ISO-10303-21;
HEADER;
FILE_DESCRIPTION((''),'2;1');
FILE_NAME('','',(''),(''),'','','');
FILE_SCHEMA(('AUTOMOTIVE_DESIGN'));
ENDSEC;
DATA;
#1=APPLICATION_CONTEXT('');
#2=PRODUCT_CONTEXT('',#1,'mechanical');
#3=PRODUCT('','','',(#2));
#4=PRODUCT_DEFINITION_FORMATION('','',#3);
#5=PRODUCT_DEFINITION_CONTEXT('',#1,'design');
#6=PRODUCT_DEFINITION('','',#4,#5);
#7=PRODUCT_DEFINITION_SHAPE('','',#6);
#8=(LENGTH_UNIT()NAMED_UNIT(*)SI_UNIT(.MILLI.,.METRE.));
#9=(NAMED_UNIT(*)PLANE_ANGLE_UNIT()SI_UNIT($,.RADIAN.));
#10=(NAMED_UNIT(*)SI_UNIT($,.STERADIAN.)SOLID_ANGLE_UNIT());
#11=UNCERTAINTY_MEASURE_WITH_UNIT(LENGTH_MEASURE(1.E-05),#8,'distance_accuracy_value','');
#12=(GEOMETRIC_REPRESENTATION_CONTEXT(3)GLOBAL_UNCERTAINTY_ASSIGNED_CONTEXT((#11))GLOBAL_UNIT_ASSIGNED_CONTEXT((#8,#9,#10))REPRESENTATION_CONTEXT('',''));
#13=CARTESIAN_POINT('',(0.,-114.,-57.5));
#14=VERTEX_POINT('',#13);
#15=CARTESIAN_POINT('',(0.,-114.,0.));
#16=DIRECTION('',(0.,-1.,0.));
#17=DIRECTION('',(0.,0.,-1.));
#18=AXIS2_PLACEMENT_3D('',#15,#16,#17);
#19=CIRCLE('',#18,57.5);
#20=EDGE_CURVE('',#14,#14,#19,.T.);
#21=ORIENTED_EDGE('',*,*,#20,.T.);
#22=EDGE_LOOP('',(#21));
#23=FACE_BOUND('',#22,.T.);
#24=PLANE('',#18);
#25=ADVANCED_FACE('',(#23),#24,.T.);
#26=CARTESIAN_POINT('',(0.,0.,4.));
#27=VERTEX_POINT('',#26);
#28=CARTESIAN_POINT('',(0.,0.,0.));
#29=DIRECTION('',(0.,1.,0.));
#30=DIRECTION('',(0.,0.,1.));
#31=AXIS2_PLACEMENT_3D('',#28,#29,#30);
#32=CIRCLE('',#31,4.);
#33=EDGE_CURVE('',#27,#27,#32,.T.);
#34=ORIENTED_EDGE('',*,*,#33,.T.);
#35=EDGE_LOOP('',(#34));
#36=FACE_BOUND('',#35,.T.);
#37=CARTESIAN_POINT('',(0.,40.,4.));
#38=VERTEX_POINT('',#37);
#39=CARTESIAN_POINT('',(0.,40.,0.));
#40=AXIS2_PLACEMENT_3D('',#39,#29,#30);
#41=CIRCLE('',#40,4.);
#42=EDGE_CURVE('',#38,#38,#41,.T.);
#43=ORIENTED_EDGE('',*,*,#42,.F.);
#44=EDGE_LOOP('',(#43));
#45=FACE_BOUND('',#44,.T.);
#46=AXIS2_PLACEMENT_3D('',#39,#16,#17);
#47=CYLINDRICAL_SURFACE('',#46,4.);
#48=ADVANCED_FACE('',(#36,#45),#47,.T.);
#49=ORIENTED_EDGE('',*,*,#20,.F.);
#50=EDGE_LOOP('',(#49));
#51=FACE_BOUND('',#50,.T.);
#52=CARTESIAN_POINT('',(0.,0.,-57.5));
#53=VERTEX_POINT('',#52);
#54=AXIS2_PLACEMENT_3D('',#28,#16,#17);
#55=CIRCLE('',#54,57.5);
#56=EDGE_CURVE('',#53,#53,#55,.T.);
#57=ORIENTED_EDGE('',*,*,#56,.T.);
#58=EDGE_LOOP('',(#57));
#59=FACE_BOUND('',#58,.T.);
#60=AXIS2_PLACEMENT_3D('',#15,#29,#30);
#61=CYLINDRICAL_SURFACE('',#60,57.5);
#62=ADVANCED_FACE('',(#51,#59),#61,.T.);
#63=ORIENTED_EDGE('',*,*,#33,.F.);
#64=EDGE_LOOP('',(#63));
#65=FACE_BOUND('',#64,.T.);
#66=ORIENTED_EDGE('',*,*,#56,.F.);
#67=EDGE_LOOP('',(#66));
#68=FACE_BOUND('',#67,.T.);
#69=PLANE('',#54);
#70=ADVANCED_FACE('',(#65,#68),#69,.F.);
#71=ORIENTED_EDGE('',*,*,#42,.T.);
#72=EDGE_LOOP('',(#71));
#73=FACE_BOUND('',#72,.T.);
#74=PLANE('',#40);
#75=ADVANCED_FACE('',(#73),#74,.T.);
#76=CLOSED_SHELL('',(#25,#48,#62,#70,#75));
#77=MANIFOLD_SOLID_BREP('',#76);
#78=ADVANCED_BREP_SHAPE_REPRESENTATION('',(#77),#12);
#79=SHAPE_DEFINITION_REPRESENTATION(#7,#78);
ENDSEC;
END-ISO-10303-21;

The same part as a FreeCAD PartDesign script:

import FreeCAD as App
import Part
import Sketcher
from FreeCAD import Vector

doc = App.newDocument("Part")
body = doc.addObject("PartDesign::Body", "Body")

sketch1 = doc.addObject("Sketcher::SketchObject", "Sketch")
body.addObject(sketch1)
sketch1.AttachmentSupport = (doc.XZ_Plane, [""])
sketch1.MapMode = "FlatFace"
sketch1.addGeometry(Part.Circle(Vector(0, 0, 0), Vector(0, 0, 1), 4), False)
sketch1.addConstraint([
    Sketcher.Constraint("Coincident", 0, 3, -1, 1),
    Sketcher.Constraint("Diameter", 0, 8.0),
])
pad1 = doc.addObject("PartDesign::Pad", "Pad")
body.addObject(pad1)
pad1.Profile = sketch1
pad1.Length = 40
pad1.Reversed = True

sketch2 = doc.addObject("Sketcher::SketchObject", "Sketch001")
body.addObject(sketch2)
sketch2.AttachmentSupport = (doc.XZ_Plane, [""])
sketch2.MapMode = "FlatFace"
sketch2.addGeometry(Part.Circle(Vector(0, 0, 0), Vector(0, 0, 1), 57.5), False)
sketch2.addConstraint([
    Sketcher.Constraint("Coincident", 0, 3, -1, 1),
    Sketcher.Constraint("Diameter", 0, 115.0),
])
pad2 = doc.addObject("PartDesign::Pad", "Pad001")
body.addObject(pad2)
pad2.Profile = sketch2
pad2.Length = 114

doc.recompute()
